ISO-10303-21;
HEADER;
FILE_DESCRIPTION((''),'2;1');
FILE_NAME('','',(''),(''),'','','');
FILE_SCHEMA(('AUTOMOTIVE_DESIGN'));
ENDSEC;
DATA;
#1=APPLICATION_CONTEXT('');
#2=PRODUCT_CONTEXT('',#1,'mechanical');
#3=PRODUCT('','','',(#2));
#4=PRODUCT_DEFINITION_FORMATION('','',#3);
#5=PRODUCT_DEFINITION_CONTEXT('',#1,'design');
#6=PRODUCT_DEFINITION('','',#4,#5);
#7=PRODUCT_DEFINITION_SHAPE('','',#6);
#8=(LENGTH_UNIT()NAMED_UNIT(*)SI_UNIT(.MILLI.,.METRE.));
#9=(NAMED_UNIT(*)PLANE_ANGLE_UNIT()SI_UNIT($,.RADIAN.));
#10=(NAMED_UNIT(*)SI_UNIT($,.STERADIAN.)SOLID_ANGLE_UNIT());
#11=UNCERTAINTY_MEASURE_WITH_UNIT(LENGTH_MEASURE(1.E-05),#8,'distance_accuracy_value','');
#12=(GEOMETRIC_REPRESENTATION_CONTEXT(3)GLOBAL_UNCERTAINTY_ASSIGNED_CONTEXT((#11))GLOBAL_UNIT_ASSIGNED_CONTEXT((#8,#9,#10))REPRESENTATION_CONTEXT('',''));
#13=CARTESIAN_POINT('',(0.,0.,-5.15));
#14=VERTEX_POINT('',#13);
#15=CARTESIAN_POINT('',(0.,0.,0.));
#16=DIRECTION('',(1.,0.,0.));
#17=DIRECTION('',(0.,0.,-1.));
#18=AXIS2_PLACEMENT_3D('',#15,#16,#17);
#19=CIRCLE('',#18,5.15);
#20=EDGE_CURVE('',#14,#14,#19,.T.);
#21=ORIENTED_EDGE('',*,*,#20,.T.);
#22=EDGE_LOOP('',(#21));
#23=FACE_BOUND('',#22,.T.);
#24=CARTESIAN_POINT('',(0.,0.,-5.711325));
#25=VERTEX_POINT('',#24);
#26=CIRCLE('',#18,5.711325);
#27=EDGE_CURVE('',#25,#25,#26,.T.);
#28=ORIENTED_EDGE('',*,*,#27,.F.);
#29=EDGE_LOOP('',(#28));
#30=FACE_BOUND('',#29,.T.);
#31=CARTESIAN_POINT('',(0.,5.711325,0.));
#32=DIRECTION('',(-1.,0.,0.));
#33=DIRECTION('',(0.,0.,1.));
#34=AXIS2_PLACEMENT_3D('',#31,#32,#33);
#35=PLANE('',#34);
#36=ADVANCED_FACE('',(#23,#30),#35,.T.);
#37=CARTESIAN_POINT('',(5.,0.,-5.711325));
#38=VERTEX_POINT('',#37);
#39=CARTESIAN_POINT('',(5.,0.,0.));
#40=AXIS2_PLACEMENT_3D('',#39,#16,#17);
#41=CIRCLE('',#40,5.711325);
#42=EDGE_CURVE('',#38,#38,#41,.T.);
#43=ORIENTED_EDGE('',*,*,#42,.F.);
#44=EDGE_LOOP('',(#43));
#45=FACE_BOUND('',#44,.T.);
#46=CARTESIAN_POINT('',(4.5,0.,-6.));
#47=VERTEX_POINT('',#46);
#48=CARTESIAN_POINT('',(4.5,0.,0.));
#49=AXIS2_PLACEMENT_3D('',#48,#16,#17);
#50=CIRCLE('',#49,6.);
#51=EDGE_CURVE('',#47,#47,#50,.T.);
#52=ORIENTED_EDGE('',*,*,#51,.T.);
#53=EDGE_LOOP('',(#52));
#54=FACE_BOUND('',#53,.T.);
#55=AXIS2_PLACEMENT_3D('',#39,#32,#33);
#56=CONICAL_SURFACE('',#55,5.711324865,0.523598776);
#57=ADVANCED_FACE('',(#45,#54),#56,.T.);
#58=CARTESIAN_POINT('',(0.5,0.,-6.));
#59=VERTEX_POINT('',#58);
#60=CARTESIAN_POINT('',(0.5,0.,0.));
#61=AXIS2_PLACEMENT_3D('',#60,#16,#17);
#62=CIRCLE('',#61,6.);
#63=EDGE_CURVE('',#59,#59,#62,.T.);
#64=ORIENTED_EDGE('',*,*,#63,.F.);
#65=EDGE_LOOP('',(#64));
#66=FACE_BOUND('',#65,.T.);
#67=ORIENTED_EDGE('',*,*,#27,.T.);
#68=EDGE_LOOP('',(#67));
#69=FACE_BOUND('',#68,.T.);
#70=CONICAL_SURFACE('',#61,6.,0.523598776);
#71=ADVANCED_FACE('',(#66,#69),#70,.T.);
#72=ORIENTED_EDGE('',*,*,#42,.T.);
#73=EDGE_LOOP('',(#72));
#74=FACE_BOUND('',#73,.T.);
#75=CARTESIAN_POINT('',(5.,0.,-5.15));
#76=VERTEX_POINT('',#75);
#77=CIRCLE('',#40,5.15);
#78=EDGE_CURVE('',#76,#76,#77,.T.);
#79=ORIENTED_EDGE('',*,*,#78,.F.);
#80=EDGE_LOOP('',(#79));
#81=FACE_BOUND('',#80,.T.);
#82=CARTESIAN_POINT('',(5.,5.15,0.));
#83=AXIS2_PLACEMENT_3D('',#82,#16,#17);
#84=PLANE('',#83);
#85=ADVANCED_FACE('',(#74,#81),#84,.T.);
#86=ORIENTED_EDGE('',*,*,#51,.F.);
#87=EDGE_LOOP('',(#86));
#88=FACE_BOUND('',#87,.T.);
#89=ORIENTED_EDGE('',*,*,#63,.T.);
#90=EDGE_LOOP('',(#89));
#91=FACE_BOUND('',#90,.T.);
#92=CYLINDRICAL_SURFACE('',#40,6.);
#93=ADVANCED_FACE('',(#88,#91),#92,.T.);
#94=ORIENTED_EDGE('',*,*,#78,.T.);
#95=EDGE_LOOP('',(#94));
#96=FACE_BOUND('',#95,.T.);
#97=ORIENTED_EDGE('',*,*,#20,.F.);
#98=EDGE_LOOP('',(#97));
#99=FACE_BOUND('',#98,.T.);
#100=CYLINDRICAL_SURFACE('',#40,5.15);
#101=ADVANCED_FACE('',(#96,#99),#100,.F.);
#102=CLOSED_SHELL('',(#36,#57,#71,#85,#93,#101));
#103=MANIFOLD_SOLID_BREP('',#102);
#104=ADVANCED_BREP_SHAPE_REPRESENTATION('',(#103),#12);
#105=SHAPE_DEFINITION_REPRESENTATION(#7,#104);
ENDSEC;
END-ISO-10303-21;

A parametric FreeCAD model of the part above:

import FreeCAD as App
import Part
import Sketcher

V = App.Vector
Q = App.Units.Quantity

doc = App.newDocument("Part")
body = doc.addObject("PartDesign::Body", "Body")

# Sketch on XY plane
sketch1 = body.newObject("Sketcher::SketchObject", "Sketch")
sketch1.AttachmentSupport = (doc.getObject("XY_Plane"), [""])
sketch1.MapMode = "FlatFace"
sketch1.addGeometry([
    Part.LineSegment(V(0, 5.2, 0), V(5, 5.2, 0)),  # 0
    Part.LineSegment(V(5, 5.2, 0), V(5, 5.7, 0)),  # 1
    Part.LineSegment(V(5, 5.7, 0), V(4.5, 6, 0)),  # 2
    Part.LineSegment(V(4.5, 6, 0), V(0.5, 6, 0)),  # 3
    Part.LineSegment(V(0.5, 6, 0), V(0, 5.7, 0)),  # 4
    Part.LineSegment(V(0, 5.7, 0), V(0, 5.2, 0)),  # 5
], False)
sketch1.addConstraint([
    Sketcher.Constraint("Coincident", 0, 2, 1, 1),
    Sketcher.Constraint("Coincident", 1, 2, 2, 1),
    Sketcher.Constraint("Coincident", 2, 2, 3, 1),
    Sketcher.Constraint("Coincident", 3, 2, 4, 1),
    Sketcher.Constraint("Coincident", 4, 2, 5, 1),
    Sketcher.Constraint("Coincident", 5, 2, 0, 1),
    Sketcher.Constraint("Horizontal", 0),
    Sketcher.Constraint("Vertical", 1),
    Sketcher.Constraint("Horizontal", 3),
    Sketcher.Constraint("Vertical", 5),
    Sketcher.Constraint("PointOnObject", 4, 2, -2),
    Sketcher.Constraint("Horizontal", 1, 2, 4, 2),
    Sketcher.Constraint("Equal", 2, 4),
    Sketcher.Constraint("DistanceX", 0, 1, 0, 2, Q("5 mm")),
    Sketcher.Constraint("DistanceX", 3, 2, 3, 1, Q("4 mm")),
    Sketcher.Constraint("Angle", 2, Q("150 deg")),
    Sketcher.Constraint("DistanceY", -1, 1, 2, 2, Q("6 mm")),
    Sketcher.Constraint("DistanceY", -1, 1, 0, 2, Q("5.15 mm")),
])
revolution = body.newObject("PartDesign::Revolution", "Revolution")
revolution.Profile = sketch1
revolution.ReferenceAxis = (sketch1, ["H_Axis"])
revolution.Angle = 360

doc.recompute()
